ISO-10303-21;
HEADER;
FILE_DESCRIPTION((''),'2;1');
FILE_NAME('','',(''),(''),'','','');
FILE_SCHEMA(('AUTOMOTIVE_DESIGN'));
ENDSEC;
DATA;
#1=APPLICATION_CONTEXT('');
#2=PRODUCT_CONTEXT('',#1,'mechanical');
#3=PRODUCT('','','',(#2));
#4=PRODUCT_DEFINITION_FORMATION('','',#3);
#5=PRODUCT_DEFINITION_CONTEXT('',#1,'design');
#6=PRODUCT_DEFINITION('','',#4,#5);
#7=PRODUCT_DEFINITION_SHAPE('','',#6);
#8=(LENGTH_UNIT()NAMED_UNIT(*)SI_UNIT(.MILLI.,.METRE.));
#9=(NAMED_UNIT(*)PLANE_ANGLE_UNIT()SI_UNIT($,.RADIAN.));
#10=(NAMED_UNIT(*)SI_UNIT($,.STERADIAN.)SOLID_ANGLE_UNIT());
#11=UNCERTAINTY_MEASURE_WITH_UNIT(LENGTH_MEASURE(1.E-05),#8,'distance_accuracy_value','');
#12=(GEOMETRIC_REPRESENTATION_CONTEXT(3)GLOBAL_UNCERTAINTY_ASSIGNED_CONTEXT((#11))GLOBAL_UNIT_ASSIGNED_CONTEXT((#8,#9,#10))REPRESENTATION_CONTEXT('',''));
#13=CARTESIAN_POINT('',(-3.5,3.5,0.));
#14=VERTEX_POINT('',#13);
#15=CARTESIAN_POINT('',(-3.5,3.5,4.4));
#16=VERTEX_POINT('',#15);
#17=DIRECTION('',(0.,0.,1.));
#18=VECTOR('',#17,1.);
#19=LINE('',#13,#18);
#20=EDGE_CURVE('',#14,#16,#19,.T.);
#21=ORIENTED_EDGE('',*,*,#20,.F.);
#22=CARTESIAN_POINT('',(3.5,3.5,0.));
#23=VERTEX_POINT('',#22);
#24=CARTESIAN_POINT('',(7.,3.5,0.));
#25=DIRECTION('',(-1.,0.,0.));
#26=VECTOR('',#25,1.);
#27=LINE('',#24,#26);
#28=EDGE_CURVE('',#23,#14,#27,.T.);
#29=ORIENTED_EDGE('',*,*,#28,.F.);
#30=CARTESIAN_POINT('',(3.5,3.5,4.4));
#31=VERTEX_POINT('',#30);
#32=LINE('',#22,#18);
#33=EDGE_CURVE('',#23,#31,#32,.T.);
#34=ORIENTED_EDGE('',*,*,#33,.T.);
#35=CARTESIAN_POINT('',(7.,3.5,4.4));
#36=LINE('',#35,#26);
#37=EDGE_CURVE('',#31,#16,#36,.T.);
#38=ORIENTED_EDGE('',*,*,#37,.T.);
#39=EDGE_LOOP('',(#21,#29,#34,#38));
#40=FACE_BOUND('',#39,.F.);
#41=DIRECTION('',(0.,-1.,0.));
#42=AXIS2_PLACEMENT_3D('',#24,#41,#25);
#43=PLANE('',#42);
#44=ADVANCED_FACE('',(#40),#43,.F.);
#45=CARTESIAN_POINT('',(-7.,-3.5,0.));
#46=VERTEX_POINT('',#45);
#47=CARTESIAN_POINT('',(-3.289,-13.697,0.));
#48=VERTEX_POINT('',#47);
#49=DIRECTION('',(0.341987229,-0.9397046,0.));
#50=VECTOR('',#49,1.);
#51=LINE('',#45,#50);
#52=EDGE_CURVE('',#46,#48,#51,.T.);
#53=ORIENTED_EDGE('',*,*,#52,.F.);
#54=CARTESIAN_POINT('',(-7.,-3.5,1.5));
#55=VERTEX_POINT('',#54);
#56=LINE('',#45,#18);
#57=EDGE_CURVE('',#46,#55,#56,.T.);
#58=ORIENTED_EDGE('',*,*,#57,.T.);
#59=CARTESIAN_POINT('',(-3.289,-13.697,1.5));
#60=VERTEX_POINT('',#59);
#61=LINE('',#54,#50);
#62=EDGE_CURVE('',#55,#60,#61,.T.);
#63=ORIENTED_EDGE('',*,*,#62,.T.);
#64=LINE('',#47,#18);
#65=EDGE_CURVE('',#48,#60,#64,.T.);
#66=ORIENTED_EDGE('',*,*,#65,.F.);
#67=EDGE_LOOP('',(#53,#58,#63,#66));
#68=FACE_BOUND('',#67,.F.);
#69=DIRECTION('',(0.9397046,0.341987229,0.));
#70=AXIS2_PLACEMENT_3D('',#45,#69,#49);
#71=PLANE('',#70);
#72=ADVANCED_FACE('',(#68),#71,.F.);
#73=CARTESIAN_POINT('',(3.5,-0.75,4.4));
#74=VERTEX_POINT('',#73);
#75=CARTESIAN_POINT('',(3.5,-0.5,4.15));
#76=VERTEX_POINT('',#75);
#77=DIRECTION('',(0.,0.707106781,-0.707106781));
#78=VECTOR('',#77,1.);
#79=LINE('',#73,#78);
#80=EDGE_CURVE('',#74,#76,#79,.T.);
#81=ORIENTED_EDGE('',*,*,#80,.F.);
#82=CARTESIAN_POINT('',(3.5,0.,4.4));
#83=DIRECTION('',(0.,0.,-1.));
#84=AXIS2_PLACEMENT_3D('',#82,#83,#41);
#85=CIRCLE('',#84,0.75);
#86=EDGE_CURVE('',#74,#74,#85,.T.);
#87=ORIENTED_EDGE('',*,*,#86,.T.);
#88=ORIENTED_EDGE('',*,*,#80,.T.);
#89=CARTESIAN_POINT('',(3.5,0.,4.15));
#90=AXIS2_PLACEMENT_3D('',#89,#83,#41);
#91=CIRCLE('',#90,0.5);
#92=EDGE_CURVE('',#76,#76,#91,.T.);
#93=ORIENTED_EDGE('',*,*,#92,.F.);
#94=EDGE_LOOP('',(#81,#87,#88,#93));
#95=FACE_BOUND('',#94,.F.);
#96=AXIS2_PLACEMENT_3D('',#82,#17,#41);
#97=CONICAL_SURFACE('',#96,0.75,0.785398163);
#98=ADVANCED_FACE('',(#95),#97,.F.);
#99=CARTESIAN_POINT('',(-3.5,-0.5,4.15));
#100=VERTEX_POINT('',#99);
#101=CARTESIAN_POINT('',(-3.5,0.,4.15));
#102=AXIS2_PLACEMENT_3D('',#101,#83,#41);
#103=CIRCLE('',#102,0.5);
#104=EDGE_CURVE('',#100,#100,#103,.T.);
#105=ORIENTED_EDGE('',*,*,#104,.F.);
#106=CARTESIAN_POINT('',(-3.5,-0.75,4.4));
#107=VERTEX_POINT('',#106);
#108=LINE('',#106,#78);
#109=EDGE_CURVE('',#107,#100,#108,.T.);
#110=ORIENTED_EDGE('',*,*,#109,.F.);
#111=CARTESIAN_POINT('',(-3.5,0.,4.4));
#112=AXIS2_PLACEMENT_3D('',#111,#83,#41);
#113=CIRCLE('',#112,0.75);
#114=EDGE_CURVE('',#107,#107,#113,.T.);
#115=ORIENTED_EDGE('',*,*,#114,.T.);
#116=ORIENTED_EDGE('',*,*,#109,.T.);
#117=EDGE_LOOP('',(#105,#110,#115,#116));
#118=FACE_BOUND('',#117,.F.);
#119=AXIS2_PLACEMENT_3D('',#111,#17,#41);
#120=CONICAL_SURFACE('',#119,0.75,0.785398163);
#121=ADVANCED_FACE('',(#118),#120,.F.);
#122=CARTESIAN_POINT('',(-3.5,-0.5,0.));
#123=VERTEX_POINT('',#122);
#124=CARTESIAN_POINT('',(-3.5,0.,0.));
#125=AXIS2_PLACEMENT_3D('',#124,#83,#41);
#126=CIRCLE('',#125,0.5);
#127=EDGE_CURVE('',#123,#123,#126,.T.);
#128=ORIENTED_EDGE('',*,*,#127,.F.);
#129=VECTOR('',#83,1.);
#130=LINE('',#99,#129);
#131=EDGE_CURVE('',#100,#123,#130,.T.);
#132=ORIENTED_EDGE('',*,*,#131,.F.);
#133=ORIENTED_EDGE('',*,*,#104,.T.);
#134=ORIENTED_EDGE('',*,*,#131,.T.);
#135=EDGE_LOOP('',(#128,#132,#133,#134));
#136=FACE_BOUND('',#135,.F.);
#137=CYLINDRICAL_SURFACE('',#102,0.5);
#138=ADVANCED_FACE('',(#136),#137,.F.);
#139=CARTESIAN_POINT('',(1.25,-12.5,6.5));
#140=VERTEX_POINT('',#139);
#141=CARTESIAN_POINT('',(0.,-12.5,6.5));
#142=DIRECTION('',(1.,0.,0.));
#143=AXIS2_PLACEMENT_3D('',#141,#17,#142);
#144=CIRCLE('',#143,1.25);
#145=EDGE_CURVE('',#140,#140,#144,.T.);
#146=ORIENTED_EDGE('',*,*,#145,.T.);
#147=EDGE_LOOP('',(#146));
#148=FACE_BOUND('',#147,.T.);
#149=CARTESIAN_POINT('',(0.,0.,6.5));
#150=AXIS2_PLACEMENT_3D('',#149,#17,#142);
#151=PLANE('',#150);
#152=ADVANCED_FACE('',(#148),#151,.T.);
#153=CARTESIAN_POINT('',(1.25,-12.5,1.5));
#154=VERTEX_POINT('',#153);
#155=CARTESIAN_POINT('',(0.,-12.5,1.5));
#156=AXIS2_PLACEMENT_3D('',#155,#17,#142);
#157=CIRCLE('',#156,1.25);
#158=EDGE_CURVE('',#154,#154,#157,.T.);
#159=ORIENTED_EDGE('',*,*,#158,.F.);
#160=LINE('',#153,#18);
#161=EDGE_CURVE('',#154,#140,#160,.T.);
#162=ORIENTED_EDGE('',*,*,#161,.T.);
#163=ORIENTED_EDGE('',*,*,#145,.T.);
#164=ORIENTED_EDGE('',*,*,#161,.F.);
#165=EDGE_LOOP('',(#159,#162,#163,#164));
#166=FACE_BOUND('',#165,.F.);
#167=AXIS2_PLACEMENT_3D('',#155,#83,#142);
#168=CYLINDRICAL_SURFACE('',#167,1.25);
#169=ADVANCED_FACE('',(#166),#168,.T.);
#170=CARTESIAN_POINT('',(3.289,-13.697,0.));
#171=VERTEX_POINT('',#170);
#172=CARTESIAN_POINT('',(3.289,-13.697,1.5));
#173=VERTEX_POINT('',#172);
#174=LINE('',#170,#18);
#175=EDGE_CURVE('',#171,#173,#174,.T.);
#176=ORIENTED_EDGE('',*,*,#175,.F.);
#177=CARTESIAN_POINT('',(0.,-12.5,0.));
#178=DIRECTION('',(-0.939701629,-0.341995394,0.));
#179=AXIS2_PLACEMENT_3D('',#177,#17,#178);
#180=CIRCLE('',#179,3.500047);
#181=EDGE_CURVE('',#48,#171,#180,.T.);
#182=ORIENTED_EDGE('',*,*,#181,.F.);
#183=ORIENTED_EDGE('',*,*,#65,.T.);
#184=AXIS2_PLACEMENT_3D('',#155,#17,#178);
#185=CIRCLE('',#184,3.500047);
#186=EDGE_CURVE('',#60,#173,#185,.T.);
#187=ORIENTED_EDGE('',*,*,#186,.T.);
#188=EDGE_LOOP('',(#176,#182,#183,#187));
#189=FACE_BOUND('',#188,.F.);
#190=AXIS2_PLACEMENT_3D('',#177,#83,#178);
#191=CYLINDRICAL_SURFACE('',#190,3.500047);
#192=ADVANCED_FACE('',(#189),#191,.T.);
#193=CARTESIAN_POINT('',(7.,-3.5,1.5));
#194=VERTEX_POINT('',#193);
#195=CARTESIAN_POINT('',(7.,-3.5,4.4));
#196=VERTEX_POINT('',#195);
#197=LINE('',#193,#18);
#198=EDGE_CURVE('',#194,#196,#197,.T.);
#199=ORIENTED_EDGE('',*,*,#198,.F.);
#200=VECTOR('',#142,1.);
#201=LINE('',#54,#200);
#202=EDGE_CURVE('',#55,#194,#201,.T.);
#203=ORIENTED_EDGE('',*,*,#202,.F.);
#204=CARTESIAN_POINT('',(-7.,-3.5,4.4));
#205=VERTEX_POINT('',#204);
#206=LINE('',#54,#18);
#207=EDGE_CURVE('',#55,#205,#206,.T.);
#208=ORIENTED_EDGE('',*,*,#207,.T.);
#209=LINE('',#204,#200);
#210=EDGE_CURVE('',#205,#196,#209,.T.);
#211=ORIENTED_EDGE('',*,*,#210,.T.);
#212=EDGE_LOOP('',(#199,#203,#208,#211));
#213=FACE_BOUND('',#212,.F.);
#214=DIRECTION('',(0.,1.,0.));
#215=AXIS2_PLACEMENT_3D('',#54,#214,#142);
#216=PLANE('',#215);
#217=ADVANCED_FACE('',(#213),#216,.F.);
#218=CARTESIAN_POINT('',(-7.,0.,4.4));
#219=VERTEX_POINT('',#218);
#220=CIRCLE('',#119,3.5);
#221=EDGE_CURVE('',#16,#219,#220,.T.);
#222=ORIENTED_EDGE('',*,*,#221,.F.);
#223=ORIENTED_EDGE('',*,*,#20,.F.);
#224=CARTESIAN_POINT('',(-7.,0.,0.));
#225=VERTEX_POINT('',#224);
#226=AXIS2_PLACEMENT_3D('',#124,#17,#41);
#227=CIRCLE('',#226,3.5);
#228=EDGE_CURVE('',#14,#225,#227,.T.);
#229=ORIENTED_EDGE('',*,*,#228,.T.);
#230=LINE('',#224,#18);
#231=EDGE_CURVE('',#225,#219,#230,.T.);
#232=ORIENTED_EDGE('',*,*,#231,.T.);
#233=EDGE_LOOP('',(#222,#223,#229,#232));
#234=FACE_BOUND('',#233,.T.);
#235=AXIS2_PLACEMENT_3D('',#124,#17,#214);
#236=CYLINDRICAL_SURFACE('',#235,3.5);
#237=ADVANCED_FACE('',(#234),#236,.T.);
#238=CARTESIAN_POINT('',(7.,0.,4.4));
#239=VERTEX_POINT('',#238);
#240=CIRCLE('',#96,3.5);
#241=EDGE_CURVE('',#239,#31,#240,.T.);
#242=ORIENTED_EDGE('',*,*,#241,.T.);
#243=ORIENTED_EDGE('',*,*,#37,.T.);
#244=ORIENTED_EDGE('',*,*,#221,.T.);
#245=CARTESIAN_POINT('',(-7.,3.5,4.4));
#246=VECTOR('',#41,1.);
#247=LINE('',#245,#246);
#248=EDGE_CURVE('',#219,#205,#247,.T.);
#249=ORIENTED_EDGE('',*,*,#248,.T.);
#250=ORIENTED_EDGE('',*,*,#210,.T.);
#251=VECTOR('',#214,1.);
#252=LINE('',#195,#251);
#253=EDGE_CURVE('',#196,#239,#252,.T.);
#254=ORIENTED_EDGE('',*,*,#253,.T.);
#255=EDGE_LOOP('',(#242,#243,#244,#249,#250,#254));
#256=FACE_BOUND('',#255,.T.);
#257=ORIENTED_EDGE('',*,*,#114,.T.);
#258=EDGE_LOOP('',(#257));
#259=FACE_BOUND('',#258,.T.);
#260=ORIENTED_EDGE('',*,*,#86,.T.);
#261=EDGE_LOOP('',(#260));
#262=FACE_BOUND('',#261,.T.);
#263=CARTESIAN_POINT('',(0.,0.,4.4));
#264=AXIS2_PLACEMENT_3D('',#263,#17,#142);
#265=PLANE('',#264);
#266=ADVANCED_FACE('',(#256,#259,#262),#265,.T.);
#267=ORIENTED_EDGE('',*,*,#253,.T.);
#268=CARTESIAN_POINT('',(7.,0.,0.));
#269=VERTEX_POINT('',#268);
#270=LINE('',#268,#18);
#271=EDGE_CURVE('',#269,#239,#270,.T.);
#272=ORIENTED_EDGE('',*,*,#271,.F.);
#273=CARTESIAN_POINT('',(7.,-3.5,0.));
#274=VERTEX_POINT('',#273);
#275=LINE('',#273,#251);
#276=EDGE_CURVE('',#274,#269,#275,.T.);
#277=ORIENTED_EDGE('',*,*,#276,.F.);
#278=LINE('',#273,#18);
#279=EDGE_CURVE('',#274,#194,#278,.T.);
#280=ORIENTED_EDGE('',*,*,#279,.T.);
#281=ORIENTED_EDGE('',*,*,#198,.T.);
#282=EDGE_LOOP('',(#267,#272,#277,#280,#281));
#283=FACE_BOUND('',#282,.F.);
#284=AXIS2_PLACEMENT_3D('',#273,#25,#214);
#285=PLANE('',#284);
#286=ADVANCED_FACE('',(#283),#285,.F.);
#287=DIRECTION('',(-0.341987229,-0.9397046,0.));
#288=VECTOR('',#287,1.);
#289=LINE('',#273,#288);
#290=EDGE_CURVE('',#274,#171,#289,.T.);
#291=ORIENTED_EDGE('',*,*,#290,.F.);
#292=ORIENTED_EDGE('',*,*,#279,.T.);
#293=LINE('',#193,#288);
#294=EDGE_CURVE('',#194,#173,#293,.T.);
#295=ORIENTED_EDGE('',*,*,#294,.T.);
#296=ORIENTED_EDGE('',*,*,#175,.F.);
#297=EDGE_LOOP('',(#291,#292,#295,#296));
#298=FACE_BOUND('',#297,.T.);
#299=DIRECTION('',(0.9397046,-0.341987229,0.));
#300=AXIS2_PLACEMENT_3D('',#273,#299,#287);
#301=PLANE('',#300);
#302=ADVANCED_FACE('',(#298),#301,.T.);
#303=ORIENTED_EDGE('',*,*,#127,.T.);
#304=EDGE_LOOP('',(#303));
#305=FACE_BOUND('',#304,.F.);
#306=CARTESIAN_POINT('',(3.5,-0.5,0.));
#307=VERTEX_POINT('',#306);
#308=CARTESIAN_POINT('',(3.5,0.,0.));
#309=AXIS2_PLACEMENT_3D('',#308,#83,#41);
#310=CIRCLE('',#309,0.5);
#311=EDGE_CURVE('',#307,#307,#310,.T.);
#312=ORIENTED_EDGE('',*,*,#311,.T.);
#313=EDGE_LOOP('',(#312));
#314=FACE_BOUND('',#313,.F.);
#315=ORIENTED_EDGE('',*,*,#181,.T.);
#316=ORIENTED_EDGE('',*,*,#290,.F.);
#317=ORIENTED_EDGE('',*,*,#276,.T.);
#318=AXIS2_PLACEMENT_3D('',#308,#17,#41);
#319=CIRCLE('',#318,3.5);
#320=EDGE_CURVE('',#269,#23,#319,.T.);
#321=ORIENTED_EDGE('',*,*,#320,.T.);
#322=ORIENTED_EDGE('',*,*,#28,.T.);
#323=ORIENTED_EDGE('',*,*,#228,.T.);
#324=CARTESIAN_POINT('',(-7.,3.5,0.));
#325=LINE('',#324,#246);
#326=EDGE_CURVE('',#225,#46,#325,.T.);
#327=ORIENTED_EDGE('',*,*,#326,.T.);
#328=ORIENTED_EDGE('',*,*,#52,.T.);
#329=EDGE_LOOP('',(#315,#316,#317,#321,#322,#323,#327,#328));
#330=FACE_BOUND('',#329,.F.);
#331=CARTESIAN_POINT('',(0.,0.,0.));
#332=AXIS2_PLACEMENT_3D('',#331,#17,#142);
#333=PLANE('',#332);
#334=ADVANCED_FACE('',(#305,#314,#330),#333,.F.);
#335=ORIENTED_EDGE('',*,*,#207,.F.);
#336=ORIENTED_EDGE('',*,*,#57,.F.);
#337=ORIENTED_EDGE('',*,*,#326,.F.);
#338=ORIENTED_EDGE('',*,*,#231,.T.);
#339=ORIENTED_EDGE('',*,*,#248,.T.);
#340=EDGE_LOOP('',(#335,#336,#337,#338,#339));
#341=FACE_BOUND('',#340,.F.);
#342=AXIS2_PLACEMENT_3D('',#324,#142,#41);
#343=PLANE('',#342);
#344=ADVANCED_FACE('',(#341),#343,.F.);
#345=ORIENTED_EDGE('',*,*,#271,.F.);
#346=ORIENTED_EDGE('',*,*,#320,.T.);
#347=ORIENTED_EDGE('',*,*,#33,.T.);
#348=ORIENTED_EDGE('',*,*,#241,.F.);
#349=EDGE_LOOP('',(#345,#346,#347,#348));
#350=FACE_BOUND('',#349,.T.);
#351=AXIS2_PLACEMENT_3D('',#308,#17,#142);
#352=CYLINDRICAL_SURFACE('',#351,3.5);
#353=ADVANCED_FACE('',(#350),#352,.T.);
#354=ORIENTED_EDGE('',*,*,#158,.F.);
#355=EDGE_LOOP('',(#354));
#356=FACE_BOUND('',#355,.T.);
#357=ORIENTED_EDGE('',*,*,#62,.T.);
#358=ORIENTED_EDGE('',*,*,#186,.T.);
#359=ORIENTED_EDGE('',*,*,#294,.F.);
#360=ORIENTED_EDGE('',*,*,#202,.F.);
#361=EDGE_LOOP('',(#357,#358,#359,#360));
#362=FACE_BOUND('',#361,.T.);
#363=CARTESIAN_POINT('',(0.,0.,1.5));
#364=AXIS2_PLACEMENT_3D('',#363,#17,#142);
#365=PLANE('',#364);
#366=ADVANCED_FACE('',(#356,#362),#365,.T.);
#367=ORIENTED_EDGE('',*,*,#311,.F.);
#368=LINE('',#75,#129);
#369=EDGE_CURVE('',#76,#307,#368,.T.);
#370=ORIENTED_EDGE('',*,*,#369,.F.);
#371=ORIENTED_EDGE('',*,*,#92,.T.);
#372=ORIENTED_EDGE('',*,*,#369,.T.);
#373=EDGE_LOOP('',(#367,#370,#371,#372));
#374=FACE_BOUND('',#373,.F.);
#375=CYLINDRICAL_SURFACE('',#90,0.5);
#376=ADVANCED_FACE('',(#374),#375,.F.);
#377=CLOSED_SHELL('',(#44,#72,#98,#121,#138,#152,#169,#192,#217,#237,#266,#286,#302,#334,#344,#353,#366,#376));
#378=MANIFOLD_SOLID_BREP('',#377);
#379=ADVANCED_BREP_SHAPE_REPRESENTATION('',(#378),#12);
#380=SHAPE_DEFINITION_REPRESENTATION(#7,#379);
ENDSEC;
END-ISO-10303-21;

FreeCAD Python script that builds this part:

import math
import FreeCAD as App
import Part
import Sketcher

V = App.Vector
Q = App.Units.Quantity


def edges_at(feature, points):
    """Names of the edges that pass closest to the given points."""
    edges = feature.Shape.Edges
    near = lambda p: min(range(len(edges)), key=lambda i: edges[i].distToShape(Part.Vertex(*p))[0])
    return sorted({f"Edge{near(p) + 1}" for p in points})


def add_polygon(sketch, points):
    """Adds a closed chain of lines whose ends are joined by coincident constraints."""
    first, n = sketch.GeometryCount, len(points)
    for a, b in zip(points, points[1:] + points[:1]):
        sketch.addGeometry(Part.LineSegment(App.Vector(*a, 0), App.Vector(*b, 0)), False)
    for i in range(n):
        sketch.addConstraint(Sketcher.Constraint("Coincident", first + i, 2, first + (i + 1) % n, 1))

doc = App.newDocument("Part")
body = doc.addObject("PartDesign::Body", "Body")

# Sketch on XY plane
sketch1 = doc.addObject("Sketcher::SketchObject", "Sketch")
body.addObject(sketch1)
sketch1.AttachmentSupport = (doc.XY_Plane, [""])
sketch1.MapMode = "FlatFace"
sketch1.addGeometry(Part.LineSegment(V(3.3, -13.7, 0), V(7, -3.5, 0)), False)
sketch1.addGeometry(Part.LineSegment(V(7, -3.5, 0), V(7, 3.5, 0)), False)
sketch1.addGeometry(Part.LineSegment(V(7, 3.5, 0), V(-7, 3.5, 0)), False)
sketch1.addGeometry(Part.LineSegment(V(-7, 3.5, 0), V(-7, -3.5, 0)), False)
sketch1.addGeometry(Part.LineSegment(V(-7, -3.5, 0), V(-3.3, -13.7, 0)), False)
sketch1.addGeometry(Part.ArcOfCircle(Part.Circle(V(0, -12.5, 0), V(0, 0, 1), 3.5), math.radians(-160), math.radians(-20)), False)
sketch1.addConstraint(Sketcher.Constraint("Coincident", 0, 2, 1, 1))
sketch1.addConstraint(Sketcher.Constraint("Coincident", 1, 2, 2, 1))
sketch1.addConstraint(Sketcher.Constraint("Coincident", 2, 2, 3, 1))
sketch1.addConstraint(Sketcher.Constraint("Coincident", 3, 2, 4, 1))
sketch1.addConstraint(Sketcher.Constraint("Tangent", 4, 2, 5, 1))
sketch1.addConstraint(Sketcher.Constraint("Tangent", 5, 2, 0, 1))
sketch1.addConstraint(Sketcher.Constraint("Vertical", 1))
sketch1.addConstraint(Sketcher.Constraint("Horizontal", 2))
sketch1.addConstraint(Sketcher.Constraint("Vertical", 3))
sketch1.addConstraint(Sketcher.Constraint("Symmetric", 0, 2, 2, 2, -1, 1))
sketch1.addConstraint(Sketcher.Constraint("Symmetric", 4, 2, 5, 2, -2))
sketch1.addConstraint(Sketcher.Constraint("Radius", 5, Q("3.5 mm")))
sketch1.addConstraint(Sketcher.Constraint("DistanceX", 2, 2, 2, 1, Q("14 mm")))
sketch1.addConstraint(Sketcher.Constraint("DistanceY", 1, 1, 1, 2, Q("7 mm")))
sketch1.addConstraint(Sketcher.Constraint("DistanceY", 5, 3, 0, 2, Q("9 mm")))
pad1 = doc.addObject("PartDesign::Pad", "Pad")
body.addObject(pad1)
pad1.Profile = sketch1
pad1.Length = 1.5

# Sketch on XY plane
sketch2 = doc.addObject("Sketcher::SketchObject", "Sketch001")
body.addObject(sketch2)
sketch2.AttachmentSupport = (doc.XY_Plane, [""])
sketch2.MapMode = "FlatFace"
sketch2.AttachmentOffset = App.Placement(V(0, 0, 1.5), App.Rotation())
add_polygon(sketch2, [(7, -4), (7, 4), (-7, 4), (-7, -4)])  # lines 0-3
sketch2.addConstraint(Sketcher.Constraint("Vertical", 0))
sketch2.addConstraint(Sketcher.Constraint("Horizontal", 1))
sketch2.addConstraint(Sketcher.Constraint("Vertical", 2))
sketch2.addConstraint(Sketcher.Constraint("Horizontal", 3))
sketch2.addConstraint(Sketcher.Constraint("Symmetric", 0, 2, 2, 2, -1, 1))
sketch2.addConstraint(Sketcher.Constraint("DistanceX", 1, 2, 1, 1, Q("14 mm")))
sketch2.addConstraint(Sketcher.Constraint("DistanceY", 0, 1, 0, 2, Q("7 mm")))
pad2 = doc.addObject("PartDesign::Pad", "Pad001")
body.addObject(pad2)
pad2.Profile = sketch2
pad2.Length = 2.9

# Sketch on XY plane
sketch3 = doc.addObject("Sketcher::SketchObject", "Sketch002")
body.addObject(sketch3)
sketch3.AttachmentSupport = (doc.XY_Plane, [""])
sketch3.MapMode = "FlatFace"
sketch3.AttachmentOffset = App.Placement(V(0, 0, 1.5), App.Rotation())
sketch3.addGeometry(Part.Circle(V(0, -12.5, 0), V(0, 0, 1), 1.2), False)
sketch3.addConstraint(Sketcher.Constraint("PointOnObject", 0, 3, -2))
sketch3.addConstraint(Sketcher.Constraint("Diameter", 0, Q("2.5 mm")))
sketch3.addConstraint(Sketcher.Constraint("DistanceY", 0, 3, -1, 1, Q("12.5 mm")))
pad3 = doc.addObject("PartDesign::Pad", "Pad002")
body.addObject(pad3)
pad3.Profile = sketch3
pad3.Length = 5
doc.recompute()

fillet = doc.addObject("PartDesign::Fillet", "Fillet")
body.addObject(fillet)
fillet.Base = (pad3, edges_at(pad3, [(7, 3.5, 2.2), (-7, 3.5, 2.2)]))
fillet.Radius = 3.5

# Sketch on XY plane
sketch4 = doc.addObject("Sketcher::SketchObject", "Sketch003")
body.addObject(sketch4)
sketch4.AttachmentSupport = (doc.XY_Plane, [""])
sketch4.MapMode = "FlatFace"
sketch4.AttachmentOffset = App.Placement(V(0, 0, 4.4), App.Rotation())
sketch4.addGeometry(Part.Circle(V(-3.5, 0, 0), V(0, 0, 1), 0.5), False)
sketch4.addGeometry(Part.Circle(V(3.5, 0, 0), V(0, 0, 1), 0.5), False)
sketch4.addConstraint(Sketcher.Constraint("Equal", 0, 1))
sketch4.addConstraint(Sketcher.Constraint("Symmetric", 0, 3, 1, 3, -1, 1))
sketch4.addConstraint(Sketcher.Constraint("PointOnObject", 0, 3, -1))
sketch4.addConstraint(Sketcher.Constraint("Diameter", 0, Q("1 mm")))
sketch4.addConstraint(Sketcher.Constraint("DistanceX", 0, 3, 1, 3, Q("7 mm")))
doc.recompute()
hole = doc.addObject("PartDesign::Hole", "Hole")
body.addObject(hole)
hole.Profile = sketch4
hole.ThreadType = "None"
hole.Diameter = 1
hole.DepthType = "ThroughAll"
hole.HoleCutType = "Countersink"
hole.HoleCutDiameter = 1.5
hole.HoleCutCountersinkAngle = 90

doc.recompute()
